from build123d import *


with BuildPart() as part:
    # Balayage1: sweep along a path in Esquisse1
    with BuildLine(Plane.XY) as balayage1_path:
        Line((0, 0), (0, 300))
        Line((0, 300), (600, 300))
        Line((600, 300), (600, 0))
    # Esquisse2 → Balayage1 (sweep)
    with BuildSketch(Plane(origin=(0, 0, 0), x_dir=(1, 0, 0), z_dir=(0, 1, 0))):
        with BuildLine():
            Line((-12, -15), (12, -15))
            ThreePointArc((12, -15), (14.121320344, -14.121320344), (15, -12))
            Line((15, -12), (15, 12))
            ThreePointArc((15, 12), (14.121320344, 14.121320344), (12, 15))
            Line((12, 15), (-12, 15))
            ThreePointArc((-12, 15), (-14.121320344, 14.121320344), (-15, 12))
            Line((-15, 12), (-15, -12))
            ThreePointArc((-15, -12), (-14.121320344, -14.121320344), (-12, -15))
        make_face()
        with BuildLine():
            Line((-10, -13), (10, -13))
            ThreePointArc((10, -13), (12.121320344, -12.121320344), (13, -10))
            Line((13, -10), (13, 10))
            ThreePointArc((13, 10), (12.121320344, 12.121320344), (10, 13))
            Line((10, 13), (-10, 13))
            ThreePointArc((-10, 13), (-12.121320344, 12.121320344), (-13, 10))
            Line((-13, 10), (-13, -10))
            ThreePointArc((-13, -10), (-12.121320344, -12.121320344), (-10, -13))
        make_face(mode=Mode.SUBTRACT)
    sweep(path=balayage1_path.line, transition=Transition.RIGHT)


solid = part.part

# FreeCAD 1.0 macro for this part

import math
import FreeCAD as App
import Part
import Sketcher
Q = App.Units.Quantity

doc = App.newDocument("Part")
body = doc.addObject("PartDesign::Body", "Body")

# Sketch on XZ plane
sketch1 = body.newObject("Sketcher::SketchObject", "Sketch")
sketch1.AttachmentSupport = (doc.getObject("XZ_Plane"), [""])
sketch1.MapMode = "FlatFace"
sketch1.addGeometry([
    Part.LineSegment(App.Vector(-12, 15, 0), App.Vector(12, 15, 0)),  # 0
    Part.ArcOfCircle(Part.Circle(App.Vector(12, 12, 0), App.Vector(0, 0, 1), 3), math.radians(0), math.radians(90)),  # 1
    Part.LineSegment(App.Vector(15, 12, 0), App.Vector(15, -12, 0)),  # 2
    Part.ArcOfCircle(Part.Circle(App.Vector(12, -12, 0), App.Vector(0, 0, 1), 3), math.radians(-90), math.radians(0)),  # 3
    Part.LineSegment(App.Vector(12, -15, 0), App.Vector(-12, -15, 0)),  # 4
    Part.ArcOfCircle(Part.Circle(App.Vector(-12, -12, 0), App.Vector(0, 0, 1), 3), math.radians(180), math.radians(270)),  # 5
    Part.LineSegment(App.Vector(-15, -12, 0), App.Vector(-15, 12, 0)),  # 6
    Part.ArcOfCircle(Part.Circle(App.Vector(-12, 12, 0), App.Vector(0, 0, 1), 3), math.radians(90), math.radians(180)),  # 7
    Part.LineSegment(App.Vector(10, 13, 0), App.Vector(-10, 13, 0)),  # 8
    Part.ArcOfCircle(Part.Circle(App.Vector(-10, 10, 0), App.Vector(0, 0, 1), 3), math.radians(90), math.radians(180)),  # 9
    Part.LineSegment(App.Vector(-13, 10, 0), App.Vector(-13, -10, 0)),  # 10
    Part.ArcOfCircle(Part.Circle(App.Vector(-10, -10, 0), App.Vector(0, 0, 1), 3), math.radians(180), math.radians(270)),  # 11
    Part.LineSegment(App.Vector(-10, -13, 0), App.Vector(10, -13, 0)),  # 12
    Part.ArcOfCircle(Part.Circle(App.Vector(10, -10, 0), App.Vector(0, 0, 1), 3), math.radians(-90), math.radians(0)),  # 13
    Part.LineSegment(App.Vector(13, -10, 0), App.Vector(13, 10, 0)),  # 14
    Part.ArcOfCircle(Part.Circle(App.Vector(10, 10, 0), App.Vector(0, 0, 1), 3), math.radians(0), math.radians(90)),  # 15
], False)
sketch1.addConstraint([
    Sketcher.Constraint("Tangent", 0, 2, 1, 2),
    Sketcher.Constraint("Tangent", 1, 1, 2, 1),
    Sketcher.Constraint("Tangent", 2, 2, 3, 2),
    Sketcher.Constraint("Tangent", 3, 1, 4, 1),
    Sketcher.Constraint("Tangent", 4, 2, 5, 2),
    Sketcher.Constraint("Tangent", 5, 1, 6, 1),
    Sketcher.Constraint("Tangent", 6, 2, 7, 2),
    Sketcher.Constraint("Tangent", 7, 1, 0, 1),
    Sketcher.Constraint("Tangent", 8, 2, 9, 1),
    Sketcher.Constraint("Tangent", 9, 2, 10, 1),
    Sketcher.Constraint("Tangent", 10, 2, 11, 1),
    Sketcher.Constraint("Tangent", 11, 2, 12, 1),
    Sketcher.Constraint("Tangent", 12, 2, 13, 1),
    Sketcher.Constraint("Tangent", 13, 2, 14, 1),
    Sketcher.Constraint("Tangent", 14, 2, 15, 1),
    Sketcher.Constraint("Tangent", 15, 2, 8, 1),
    Sketcher.Constraint("Horizontal", 0),
    Sketcher.Constraint("Vertical", 2),
    Sketcher.Constraint("Horizontal", 4),
    Sketcher.Constraint("Vertical", 6),
    Sketcher.Constraint("Horizontal", 8),
    Sketcher.Constraint("Vertical", 10),
    Sketcher.Constraint("Horizontal", 12),
    Sketcher.Constraint("Vertical", 14),
    Sketcher.Constraint("Equal", 1, 3),
    Sketcher.Constraint("Equal", 3, 5),
    Sketcher.Constraint("Equal", 5, 7),
    Sketcher.Constraint("Equal", 7, 9),
    Sketcher.Constraint("Equal", 9, 11),
    Sketcher.Constraint("Equal", 11, 13),
    Sketcher.Constraint("Equal", 13, 15),
    Sketcher.Constraint("Symmetric", 1, 3, 5, 3, -1, 1),
    Sketcher.Constraint("Symmetric", 9, 3, 13, 3, -1, 1),
    Sketcher.Constraint("Equal", 4, 2),
    Sketcher.Constraint("Equal", 12, 10),
    Sketcher.Constraint("Radius", 1, Q("3 mm")),
    Sketcher.Constraint("DistanceX", 0, 1, 0, 2, Q("24 mm")),
    Sketcher.Constraint("DistanceX", 8, 2, 8, 1, Q("20 mm")),
])

# Sketch on XY plane
sketch2 = body.newObject("Sketcher::SketchObject", "Sketch001")
sketch2.AttachmentSupport = (doc.getObject("XY_Plane"), [""])
sketch2.MapMode = "FlatFace"
sketch2.addGeometry([
    Part.LineSegment(App.Vector(0, 0, 0), App.Vector(0, 300, 0)),
    Part.LineSegment(App.Vector(0, 300, 0), App.Vector(600, 300, 0)),
    Part.LineSegment(App.Vector(600, 300, 0), App.Vector(600, 0, 0)),
], False)
sketch2.addConstraint([
    Sketcher.Constraint("Coincident", 0, 2, 1, 1),
    Sketcher.Constraint("Coincident", 1, 2, 2, 1),
    Sketcher.Constraint("Vertical", 0),
    Sketcher.Constraint("Horizontal", 1),
    Sketcher.Constraint("Vertical", 2),
    Sketcher.Constraint("Coincident", 0, 1, -1, 1),
    Sketcher.Constraint("PointOnObject", 2, 2, -1),
    Sketcher.Constraint("DistanceX", 1, 1, 1, 2, Q("600 mm")),
    Sketcher.Constraint("DistanceY", 0, 1, 0, 2, Q("300 mm")),
])
doc.recompute()

additivepipe = body.newObject("PartDesign::AdditivePipe", "AdditivePipe")
additivepipe.Profile = sketch1
additivepipe.Spine = (sketch2, ["Edge1", "Edge2", "Edge3"])
additivepipe.Transition = "Right corner"

doc.recompute()
